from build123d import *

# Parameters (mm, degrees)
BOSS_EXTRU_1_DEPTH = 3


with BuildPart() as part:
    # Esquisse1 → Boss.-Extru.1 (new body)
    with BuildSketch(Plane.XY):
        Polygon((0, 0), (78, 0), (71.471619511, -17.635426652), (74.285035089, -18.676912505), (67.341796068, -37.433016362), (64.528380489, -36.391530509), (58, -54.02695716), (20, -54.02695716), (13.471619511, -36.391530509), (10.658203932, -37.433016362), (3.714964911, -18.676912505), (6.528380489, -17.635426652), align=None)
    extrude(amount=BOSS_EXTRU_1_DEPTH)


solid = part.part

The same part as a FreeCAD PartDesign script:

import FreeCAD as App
import Part
import Sketcher
from FreeCAD import Vector


def add_polygon(sketch, points):
    """Adds a closed chain of lines whose ends are joined by coincident constraints."""
    first, n = sketch.GeometryCount, len(points)
    for a, b in zip(points, points[1:] + points[:1]):
        sketch.addGeometry(Part.LineSegment(App.Vector(*a, 0), App.Vector(*b, 0)), False)
    for i in range(n):
        sketch.addConstraint(Sketcher.Constraint("Coincident", first + i, 2, first + (i + 1) % n, 1))

doc = App.newDocument("Part")
body = doc.addObject("PartDesign::Body", "Body")

# Sketch on XY plane
sketch1 = doc.addObject("Sketcher::SketchObject", "Sketch")
body.addObject(sketch1)
sketch1.AttachmentSupport = (doc.XY_Plane, [""])
sketch1.MapMode = "FlatFace"
add_polygon(sketch1, [(78, 0), (0, 0), (6.52838, -17.635427), (3.714965, -18.676913), (10.658204, -37.433016), (13.47162, -36.391531), (20, -54.026957), (58, -54.026957), (64.52838, -36.391531), (67.341796, -37.433016), (74.285035, -18.676913), (71.47162, -17.635427)])  # lines 0-11
sketch1.addConstraint([
    Sketcher.Constraint("Horizontal", 0),
    Sketcher.Constraint("Horizontal", 6),
    Sketcher.Constraint("Coincident", 0, 2, -1, 1),
    Sketcher.Constraint("Perpendicular", 1, 2),
    Sketcher.Constraint("Perpendicular", 2, 3),
    Sketcher.Constraint("Perpendicular", 3, 4),
    Sketcher.Constraint("Perpendicular", 4, 5),
    Sketcher.Constraint("Perpendicular", 7, 8),
    Sketcher.Constraint("Perpendicular", 8, 9),
    Sketcher.Constraint("Perpendicular", 9, 10),
    Sketcher.Constraint("Perpendicular", 10, 11),
    Sketcher.Constraint("Horizontal", 4, 2, 7, 2),
    Sketcher.Constraint("Horizontal", 3, 2, 8, 2),
    Sketcher.Constraint("Horizontal", 2, 2, 9, 2),
    Sketcher.Constraint("Horizontal", 1, 2, 10, 2),
    Sketcher.Constraint("Equal", 2, 4),
    Sketcher.Constraint("Equal", 1, 5),
    Sketcher.Constraint("Equal", 5, 7),
    Sketcher.Constraint("DistanceX", 0, 2, 0, 1, 78.0),
    Sketcher.Constraint("DistanceX", 6, 1, 6, 2, 38.0),
    Sketcher.Constraint("Distance", 2, 3.0),
    Sketcher.Constraint("Distance", 3, 20.0),
    Sketcher.Constraint("Distance", 1, 18.805),
])
pad1 = doc.addObject("PartDesign::Pad", "Pad")
body.addObject(pad1)
pad1.Profile = sketch1
pad1.Length = 3

doc.recompute()
